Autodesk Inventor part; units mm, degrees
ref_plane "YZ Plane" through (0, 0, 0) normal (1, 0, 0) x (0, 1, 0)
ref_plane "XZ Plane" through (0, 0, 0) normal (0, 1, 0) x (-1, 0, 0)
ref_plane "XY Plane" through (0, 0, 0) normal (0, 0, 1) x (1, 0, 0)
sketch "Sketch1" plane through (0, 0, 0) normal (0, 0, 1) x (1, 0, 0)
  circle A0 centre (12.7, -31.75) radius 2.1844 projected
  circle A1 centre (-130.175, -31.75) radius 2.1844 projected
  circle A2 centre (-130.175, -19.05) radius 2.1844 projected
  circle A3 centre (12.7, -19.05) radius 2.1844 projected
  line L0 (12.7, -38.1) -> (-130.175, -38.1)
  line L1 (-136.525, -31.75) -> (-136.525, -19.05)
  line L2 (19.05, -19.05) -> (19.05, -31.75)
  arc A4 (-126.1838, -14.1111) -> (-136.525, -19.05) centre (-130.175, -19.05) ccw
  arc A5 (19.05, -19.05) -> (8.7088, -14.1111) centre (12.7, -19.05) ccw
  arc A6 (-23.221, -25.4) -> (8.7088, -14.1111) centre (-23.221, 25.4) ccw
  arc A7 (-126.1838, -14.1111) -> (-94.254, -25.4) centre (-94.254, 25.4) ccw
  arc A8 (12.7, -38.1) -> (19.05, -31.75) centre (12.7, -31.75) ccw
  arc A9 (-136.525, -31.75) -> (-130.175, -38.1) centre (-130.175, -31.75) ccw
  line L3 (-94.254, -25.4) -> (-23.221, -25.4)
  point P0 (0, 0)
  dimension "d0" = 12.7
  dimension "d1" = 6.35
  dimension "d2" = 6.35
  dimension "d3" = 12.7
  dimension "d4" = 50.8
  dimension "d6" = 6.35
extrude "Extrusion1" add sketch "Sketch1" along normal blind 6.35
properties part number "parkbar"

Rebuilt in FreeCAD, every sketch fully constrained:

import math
import FreeCAD as App
import Part
import Sketcher

V = App.Vector
Q = App.Units.Quantity

doc = App.newDocument("Part")
body = doc.addObject("PartDesign::Body", "Body")

sketch1 = body.newObject("Sketcher::SketchObject", "Sketch")
sketch1.AttachmentSupport = (doc.getObject("XY_Plane"), [""])
sketch1.MapMode = "FlatFace"
sketch1.addGeometry([
    Part.LineSegment(V(-130.2, -38.1, 0), V(12.7, -38.1, 0)),
    Part.ArcOfCircle(Part.Circle(V(12.7, -31.8, 0), V(0, 0, 1), 6.4), math.radians(-90), math.radians(0)),
    Part.LineSegment(V(19.1, -31.8, 0), V(19.1, -19.1, 0)),
    Part.ArcOfCircle(Part.Circle(V(12.7, -19.1, 0), V(0, 0, 1), 6.4), math.radians(0), math.radians(129)),
    Part.ArcOfCircle(Part.Circle(V(-23.2, 25.4, 0), V(0, 0, 1), 50.8), math.radians(-90), math.radians(-51)),
    Part.LineSegment(V(-23.2, -25.4, 0), V(-94.3, -25.4, 0)),
    Part.ArcOfCircle(Part.Circle(V(-94.3, 25.4, 0), V(0, 0, 1), 50.8), math.radians(-129), math.radians(-90)),
    Part.ArcOfCircle(Part.Circle(V(-130.2, -19.1, 0), V(0, 0, 1), 6.3), math.radians(51), math.radians(180)),
    Part.LineSegment(V(-136.5, -19.1, 0), V(-136.5, -31.8, 0)),
    Part.ArcOfCircle(Part.Circle(V(-130.2, -31.8, 0), V(0, 0, 1), 6.3), math.radians(180), math.radians(270)),
    Part.Circle(V(-130.2, -31.8, 0), V(0, 0, 1), 2.2),
    Part.Circle(V(12.7, -31.8, 0), V(0, 0, 1), 2.2),
    Part.Circle(V(-130.2, -19.1, 0), V(0, 0, 1), 2.2),
    Part.Circle(V(12.7, -19.1, 0), V(0, 0, 1), 2.2),
], False)
sketch1.addConstraint([
    Sketcher.Constraint("Tangent", 0, 2, 1, 1),
    Sketcher.Constraint("Tangent", 1, 2, 2, 1),
    Sketcher.Constraint("Tangent", 2, 2, 3, 1),
    Sketcher.Constraint("Tangent", 3, 2, 4, 2),
    Sketcher.Constraint("Tangent", 4, 1, 5, 1),
    Sketcher.Constraint("Tangent", 5, 2, 6, 2),
    Sketcher.Constraint("Tangent", 6, 1, 7, 1),
    Sketcher.Constraint("Tangent", 7, 2, 8, 1),
    Sketcher.Constraint("Tangent", 8, 2, 9, 1),
    Sketcher.Constraint("Tangent", 9, 2, 0, 1),
    Sketcher.Constraint("Horizontal", 0),
    Sketcher.Constraint("Vertical", 2),
    Sketcher.Constraint("Horizontal", 5),
    Sketcher.Constraint("Vertical", 8),
    Sketcher.Constraint("Coincident", 10, 3, 9, 3),
    Sketcher.Constraint("Coincident", 11, 3, 1, 3),
    Sketcher.Constraint("Coincident", 12, 3, 7, 3),
    Sketcher.Constraint("Coincident", 13, 3, 3, 3),
    Sketcher.Constraint("Equal", 1, 3),
    Sketcher.Constraint("Equal", 4, 6),
    Sketcher.Constraint("Equal", 3, 7),
    Sketcher.Constraint("Equal", 7, 9),
    Sketcher.Constraint("Equal", 10, 11),
    Sketcher.Constraint("Equal", 11, 12),
    Sketcher.Constraint("Equal", 12, 13),
    Sketcher.Constraint("Horizontal", 3, 3, 7, 3),
    Sketcher.Constraint("Radius", 4, Q("2 in")),
    Sketcher.Constraint("Radius", 1, Q("0.25 in")),
    Sketcher.Constraint("DistanceY", 2, 1, 2, 2, Q("0.5 in")),
    Sketcher.Constraint("DistanceX", -1, 1, 1, 3, Q("0.5 in")),
    Sketcher.Constraint("DistanceY", 1, 3, 4, 1, Q("0.25 in")),
    Sketcher.Constraint("Diameter", 10, Q("0.172 in")),
    Sketcher.Constraint("DistanceY", -1, 1, 4, 3, Q("1 in")),
    Sketcher.Constraint("DistanceX", 0, 1, 0, 2, Q("5.625 in")),
])
pad1 = body.newObject("PartDesign::Pad", "Pad")
pad1.Profile = sketch1
pad1.Length = Q("0.25 in")

doc.recompute()
